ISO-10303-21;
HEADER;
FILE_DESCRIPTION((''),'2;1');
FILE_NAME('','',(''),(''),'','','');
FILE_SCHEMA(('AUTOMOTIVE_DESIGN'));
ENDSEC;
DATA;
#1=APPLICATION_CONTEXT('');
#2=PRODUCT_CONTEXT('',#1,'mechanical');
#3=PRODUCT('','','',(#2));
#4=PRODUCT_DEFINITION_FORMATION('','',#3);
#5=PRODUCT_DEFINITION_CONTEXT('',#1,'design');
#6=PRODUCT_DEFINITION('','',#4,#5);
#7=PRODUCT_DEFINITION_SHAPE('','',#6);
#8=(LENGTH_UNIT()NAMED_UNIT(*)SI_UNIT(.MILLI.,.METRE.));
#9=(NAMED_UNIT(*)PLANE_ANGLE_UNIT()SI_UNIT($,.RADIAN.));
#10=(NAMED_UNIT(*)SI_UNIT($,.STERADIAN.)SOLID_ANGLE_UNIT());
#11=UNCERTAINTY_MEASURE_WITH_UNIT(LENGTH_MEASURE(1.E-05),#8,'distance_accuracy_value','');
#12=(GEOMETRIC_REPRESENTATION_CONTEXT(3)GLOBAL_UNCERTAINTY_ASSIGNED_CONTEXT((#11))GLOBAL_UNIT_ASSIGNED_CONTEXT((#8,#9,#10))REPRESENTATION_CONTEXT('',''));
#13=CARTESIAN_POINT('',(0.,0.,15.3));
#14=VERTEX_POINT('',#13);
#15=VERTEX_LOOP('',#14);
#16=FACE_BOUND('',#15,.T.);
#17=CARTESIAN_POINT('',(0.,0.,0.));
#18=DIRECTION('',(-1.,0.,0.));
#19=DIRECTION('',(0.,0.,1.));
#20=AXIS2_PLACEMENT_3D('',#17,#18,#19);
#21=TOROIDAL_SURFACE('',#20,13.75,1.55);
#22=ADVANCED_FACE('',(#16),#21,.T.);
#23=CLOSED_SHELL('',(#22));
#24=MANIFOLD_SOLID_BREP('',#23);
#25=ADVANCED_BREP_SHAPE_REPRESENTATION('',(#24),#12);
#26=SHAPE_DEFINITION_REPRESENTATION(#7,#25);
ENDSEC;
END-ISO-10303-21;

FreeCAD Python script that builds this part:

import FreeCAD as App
import Part
import Sketcher
Q = App.Units.Quantity

doc = App.newDocument("Part")
body = doc.addObject("PartDesign::Body", "Body")

sketch1 = doc.addObject("Sketcher::SketchObject", "Sketch")
body.addObject(sketch1)
sketch1.AttachmentSupport = (doc.XY_Plane, [""])
sketch1.MapMode = "FlatFace"
sketch1.addGeometry(Part.Circle(App.Vector(0, 13.8, 0), App.Vector(0, 0, 1), 1.6), False)
sketch1.addConstraint([
    Sketcher.Constraint("PointOnObject", 0, 3, -2),
    Sketcher.Constraint("Diameter", 0, Q("3.1 mm")),
    Sketcher.Constraint("DistanceY", -1, 1, 0, 3, Q("13.75 mm")),
])
revolution = doc.addObject("PartDesign::Revolution", "Revolution")
body.addObject(revolution)
revolution.Profile = sketch1
revolution.ReferenceAxis = (sketch1, ["H_Axis"])
revolution.Angle = 360

doc.recompute()
